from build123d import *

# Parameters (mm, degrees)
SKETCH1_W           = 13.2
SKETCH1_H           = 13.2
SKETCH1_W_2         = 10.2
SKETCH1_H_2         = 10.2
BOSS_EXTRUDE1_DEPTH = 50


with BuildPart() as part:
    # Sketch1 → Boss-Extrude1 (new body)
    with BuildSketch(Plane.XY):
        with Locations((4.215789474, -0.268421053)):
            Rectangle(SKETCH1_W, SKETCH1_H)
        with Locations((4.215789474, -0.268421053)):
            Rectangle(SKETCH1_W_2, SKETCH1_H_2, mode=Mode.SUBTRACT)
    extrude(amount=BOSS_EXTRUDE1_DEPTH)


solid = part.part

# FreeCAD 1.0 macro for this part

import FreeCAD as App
import Part
import Sketcher

V = App.Vector
Q = App.Units.Quantity


def add_polygon(sketch, points):
    """Adds a closed chain of lines whose ends are joined by coincident constraints."""
    first, n = sketch.GeometryCount, len(points)
    for a, b in zip(points, points[1:] + points[:1]):
        sketch.addGeometry(Part.LineSegment(App.Vector(*a, 0), App.Vector(*b, 0)), False)
    for i in range(n):
        sketch.addConstraint(Sketcher.Constraint("Coincident", first + i, 2, first + (i + 1) % n, 1))

doc = App.newDocument("Part")
params = doc.addObject("Spreadsheet::Sheet", "Params")
for row, (alias, value) in enumerate([
    ("sketch1_width", "13.2 mm"),
    ("sketch1_width2", "10.2 mm"),
    ("pad1_length", "50 mm"),
], start=1):
    params.set(f"A{row}", alias)
    params.set(f"B{row}", "=" + value)
    params.setAlias(f"B{row}", alias)

body = doc.addObject("PartDesign::Body", "Body")

# Sketch on XY plane
sketch1 = doc.addObject("Sketcher::SketchObject", "Sketch")
body.addObject(sketch1)
sketch1.AttachmentSupport = (doc.XY_Plane, [""])
sketch1.MapMode = "FlatFace"
add_polygon(sketch1, [(-2, 6), (-2, -7), (11, -7), (11, 6)])  # lines 0-3
add_polygon(sketch1, [(9, -5), (-1, -5), (-1, 5), (9, 5)])  # lines 4-7
sketch1.addConstraint(Sketcher.Constraint("Vertical", 0))
sketch1.addConstraint(Sketcher.Constraint("Horizontal", 1))
sketch1.addConstraint(Sketcher.Constraint("Vertical", 2))
sketch1.addConstraint(Sketcher.Constraint("Horizontal", 3))
sketch1.addConstraint(Sketcher.Constraint("Horizontal", 4))
sketch1.addConstraint(Sketcher.Constraint("Vertical", 5))
sketch1.addConstraint(Sketcher.Constraint("Horizontal", 6))
sketch1.addConstraint(Sketcher.Constraint("Vertical", 7))
sketch1.addConstraint(Sketcher.Constraint("Equal", 3, 0))
sketch1.addConstraint(Sketcher.Constraint("Equal", 6, 5))
sketch1.addConstraint(Sketcher.Constraint("DistanceX", 1, 1, 1, 2, Q("13.2 mm")))
sketch1.addConstraint(Sketcher.Constraint("DistanceX", 4, 2, 4, 1, Q("10.2 mm")))
sketch1.addConstraint(Sketcher.Constraint("DistanceX", 0, 2, 4, 2, Q("1.5 mm")))
sketch1.addConstraint(Sketcher.Constraint("DistanceY", 0, 2, 4, 2, Q("1.5 mm")))
sketch1.addConstraint(Sketcher.Constraint("DistanceX", 0, 2, -1, 1, Q("2.384211 mm")))
sketch1.addConstraint(Sketcher.Constraint("DistanceY", 0, 2, -1, 1, Q("6.868421 mm")))
sketch1.setExpression("Constraints[18]", "Params.sketch1_width")
sketch1.setExpression("Constraints[19]", "Params.sketch1_width2")
pad1 = doc.addObject("PartDesign::Pad", "Pad")
body.addObject(pad1)
pad1.Profile = sketch1
pad1.setExpression("Length", "Params.pad1_length")

doc.recompute()
